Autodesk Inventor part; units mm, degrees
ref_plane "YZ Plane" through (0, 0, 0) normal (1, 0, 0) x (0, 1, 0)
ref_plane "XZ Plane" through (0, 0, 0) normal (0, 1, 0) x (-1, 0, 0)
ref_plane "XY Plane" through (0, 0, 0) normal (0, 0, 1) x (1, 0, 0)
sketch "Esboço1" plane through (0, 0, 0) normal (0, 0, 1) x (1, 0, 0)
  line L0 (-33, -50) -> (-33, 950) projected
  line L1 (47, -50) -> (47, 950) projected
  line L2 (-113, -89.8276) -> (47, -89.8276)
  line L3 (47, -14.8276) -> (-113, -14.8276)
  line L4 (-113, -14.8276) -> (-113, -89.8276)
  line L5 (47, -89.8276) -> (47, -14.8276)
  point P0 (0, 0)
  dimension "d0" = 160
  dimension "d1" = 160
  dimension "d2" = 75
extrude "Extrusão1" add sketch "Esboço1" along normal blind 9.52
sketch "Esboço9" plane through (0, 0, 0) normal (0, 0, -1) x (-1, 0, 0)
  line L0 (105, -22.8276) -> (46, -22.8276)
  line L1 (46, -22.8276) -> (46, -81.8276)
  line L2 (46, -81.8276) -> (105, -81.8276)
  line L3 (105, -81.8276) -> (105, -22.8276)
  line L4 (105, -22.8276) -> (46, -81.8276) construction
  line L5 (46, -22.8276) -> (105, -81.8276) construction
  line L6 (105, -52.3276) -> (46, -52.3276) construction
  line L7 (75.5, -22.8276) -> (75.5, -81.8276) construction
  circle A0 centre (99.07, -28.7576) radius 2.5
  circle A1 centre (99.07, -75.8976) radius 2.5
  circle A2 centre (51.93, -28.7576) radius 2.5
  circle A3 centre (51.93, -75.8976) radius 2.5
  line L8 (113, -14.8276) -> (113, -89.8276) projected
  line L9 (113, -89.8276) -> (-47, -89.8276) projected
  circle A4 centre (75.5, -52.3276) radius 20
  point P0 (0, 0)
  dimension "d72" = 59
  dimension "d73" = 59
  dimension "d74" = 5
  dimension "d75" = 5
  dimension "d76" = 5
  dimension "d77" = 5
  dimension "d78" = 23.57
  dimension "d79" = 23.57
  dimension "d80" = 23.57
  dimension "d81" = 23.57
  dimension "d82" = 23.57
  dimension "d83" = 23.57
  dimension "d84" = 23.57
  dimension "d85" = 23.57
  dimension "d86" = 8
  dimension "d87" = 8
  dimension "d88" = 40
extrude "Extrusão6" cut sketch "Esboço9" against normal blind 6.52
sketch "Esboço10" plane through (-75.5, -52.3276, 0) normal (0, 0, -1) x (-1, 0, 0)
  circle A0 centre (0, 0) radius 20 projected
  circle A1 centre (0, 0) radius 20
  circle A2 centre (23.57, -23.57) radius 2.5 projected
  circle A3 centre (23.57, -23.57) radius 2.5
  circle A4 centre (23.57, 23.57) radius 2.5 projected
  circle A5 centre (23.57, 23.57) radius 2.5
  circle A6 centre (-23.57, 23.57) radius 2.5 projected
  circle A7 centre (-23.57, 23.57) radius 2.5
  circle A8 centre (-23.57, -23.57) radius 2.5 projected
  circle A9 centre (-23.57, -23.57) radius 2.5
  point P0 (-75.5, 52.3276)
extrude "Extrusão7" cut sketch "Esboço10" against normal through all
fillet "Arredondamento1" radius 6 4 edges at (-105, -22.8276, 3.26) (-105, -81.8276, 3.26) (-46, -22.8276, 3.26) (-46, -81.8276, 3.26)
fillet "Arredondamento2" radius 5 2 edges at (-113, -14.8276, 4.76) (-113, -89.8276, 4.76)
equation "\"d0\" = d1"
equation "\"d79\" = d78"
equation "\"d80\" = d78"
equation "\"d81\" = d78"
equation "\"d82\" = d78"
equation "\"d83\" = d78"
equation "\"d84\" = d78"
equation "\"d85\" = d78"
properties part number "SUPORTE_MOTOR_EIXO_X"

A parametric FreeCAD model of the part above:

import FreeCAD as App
import Part
import Sketcher

V = App.Vector
Q = App.Units.Quantity


def edges_at(feature, points):
    """Names of the edges that pass closest to the given points."""
    edges = feature.Shape.Edges
    near = lambda p: min(range(len(edges)), key=lambda i: edges[i].distToShape(Part.Vertex(*p))[0])
    return sorted({f"Edge{near(p) + 1}" for p in points})


def add_polygon(sketch, points):
    """Adds a closed chain of lines whose ends are joined by coincident constraints."""
    first, n = sketch.GeometryCount, len(points)
    for a, b in zip(points, points[1:] + points[:1]):
        sketch.addGeometry(Part.LineSegment(App.Vector(*a, 0), App.Vector(*b, 0)), False)
    for i in range(n):
        sketch.addConstraint(Sketcher.Constraint("Coincident", first + i, 2, first + (i + 1) % n, 1))

doc = App.newDocument("Part")
body = doc.addObject("PartDesign::Body", "Body")

# Sketch on XY plane
sketch1 = doc.addObject("Sketcher::SketchObject", "Sketch")
body.addObject(sketch1)
sketch1.AttachmentSupport = (doc.XY_Plane, [""])
sketch1.MapMode = "FlatFace"
add_polygon(sketch1, [(47, -90), (47, -15), (-113, -15), (-113, -90)])  # lines 0-3
sketch1.addConstraint([
    Sketcher.Constraint("Vertical", 0),
    Sketcher.Constraint("Horizontal", 1),
    Sketcher.Constraint("Vertical", 2),
    Sketcher.Constraint("Horizontal", 3),
    Sketcher.Constraint("DistanceX", 1, 2, 1, 1, Q("160 mm")),
    Sketcher.Constraint("DistanceY", 0, 1, 0, 2, Q("75 mm")),
    Sketcher.Constraint("DistanceX", -1, 1, 0, 2, Q("47 mm")),
    Sketcher.Constraint("DistanceY", 0, 2, -1, 1, Q("14.8276 mm")),
])
pad1 = doc.addObject("PartDesign::Pad", "Pad")
body.addObject(pad1)
pad1.Profile = sketch1
pad1.Length = 9.52

# Sketch on XY plane
sketch2 = doc.addObject("Sketcher::SketchObject", "Sketch001")
body.addObject(sketch2)
sketch2.AttachmentSupport = (doc.XY_Plane, [""])
sketch2.MapMode = "FlatFace"
add_polygon(sketch2, [(-105, -81.8), (-105, -22.8), (-46, -22.8), (-46, -81.8)])  # lines 0-3
sketch2.addGeometry(Part.Circle(V(-51.9, -75.9, 0), V(0, 0, 1), 2.5), False)  # 4
sketch2.addGeometry(Part.Circle(V(-99.1, -75.9, 0), V(0, 0, 1), 2.5), False)  # 5
sketch2.addGeometry(Part.Circle(V(-51.9, -28.8, 0), V(0, 0, 1), 2.5), False)  # 6
sketch2.addGeometry(Part.Circle(V(-75.5, -52.3, 0), V(0, 0, 1), 20), False)  # 7
sketch2.addGeometry(Part.Circle(V(-99.1, -28.8, 0), V(0, 0, 1), 2.5), False)  # 8
sketch2.addConstraint([
    Sketcher.Constraint("Vertical", 0),
    Sketcher.Constraint("Horizontal", 1),
    Sketcher.Constraint("Vertical", 2),
    Sketcher.Constraint("Horizontal", 3),
    Sketcher.Constraint("Equal", 4, 5),
    Sketcher.Constraint("Equal", 5, 6),
    Sketcher.Constraint("Equal", 6, 8),
    Sketcher.Constraint("Horizontal", 4, 3, 5, 3),
    Sketcher.Constraint("Horizontal", 6, 3, 8, 3),
    Sketcher.Constraint("Vertical", 4, 3, 6, 3),
    Sketcher.Constraint("Vertical", 5, 3, 8, 3),
    Sketcher.Constraint("Equal", 3, 0),
    Sketcher.Constraint("Diameter", 4, Q("5 mm")),
    Sketcher.Constraint("Diameter", 7, Q("40 mm")),
    Sketcher.Constraint("DistanceX", 1, 1, 1, 2, Q("59 mm")),
    Sketcher.Constraint("DistanceX", 7, 3, 4, 3, Q("23.57 mm")),
    Sketcher.Constraint("DistanceY", 4, 3, 7, 3, Q("23.57 mm")),
    Sketcher.Constraint("DistanceX", 5, 3, 7, 3, Q("23.57 mm")),
    Sketcher.Constraint("DistanceY", 7, 3, 6, 3, Q("23.57 mm")),
    Sketcher.Constraint("DistanceX", 0, 2, -1, 1, Q("105 mm")),
    Sketcher.Constraint("DistanceX", 7, 3, -1, 1, Q("75.5 mm")),
    Sketcher.Constraint("DistanceY", 7, 3, 0, 2, Q("29.5 mm")),
    Sketcher.Constraint("DistanceY", 4, 3, -1, 1, Q("75.8976 mm")),
])
pocket1 = doc.addObject("PartDesign::Pocket", "Pocket")
body.addObject(pocket1)
pocket1.Profile = sketch2
pocket1.Length = 6.52
pocket1.Reversed = True

# Sketch on XY plane
sketch3 = doc.addObject("Sketcher::SketchObject", "Sketch002")
body.addObject(sketch3)
sketch3.AttachmentSupport = (doc.XY_Plane, [""])
sketch3.MapMode = "FlatFace"
sketch3.addGeometry([
    Part.Circle(V(-75.5, -52.3, 0), V(0, 0, 1), 20),  # 0
    Part.Circle(V(-99.1, -75.9, 0), V(0, 0, 1), 2.5),  # 1
    Part.Circle(V(-99.1, -28.8, 0), V(0, 0, 1), 2.5),  # 2
    Part.Circle(V(-51.9, -28.8, 0), V(0, 0, 1), 2.5),  # 3
    Part.Circle(V(-51.9, -75.9, 0), V(0, 0, 1), 2.5),  # 4
], False)
sketch3.addConstraint([
    Sketcher.Constraint("Equal", 1, 2),
    Sketcher.Constraint("Equal", 2, 3),
    Sketcher.Constraint("Equal", 3, 4),
    Sketcher.Constraint("Horizontal", 2, 3, 3, 3),
    Sketcher.Constraint("Horizontal", 1, 3, 4, 3),
    Sketcher.Constraint("Vertical", 1, 3, 2, 3),
    Sketcher.Constraint("Vertical", 3, 3, 4, 3),
    Sketcher.Constraint("Diameter", 0, Q("40 mm")),
    Sketcher.Constraint("Diameter", 1, Q("5 mm")),
    Sketcher.Constraint("DistanceX", 0, 3, -1, 1, Q("75.5 mm")),
    Sketcher.Constraint("DistanceX", 1, 3, -1, 1, Q("99.07 mm")),
    Sketcher.Constraint("DistanceX", 3, 3, -1, 1, Q("51.93 mm")),
    Sketcher.Constraint("DistanceY", 1, 3, 0, 3, Q("23.57 mm")),
    Sketcher.Constraint("DistanceY", 0, 3, 2, 3, Q("23.57 mm")),
    Sketcher.Constraint("DistanceY", 0, 3, -1, 1, Q("52.3276 mm")),
])
pocket2 = doc.addObject("PartDesign::Pocket", "Pocket001")
body.addObject(pocket2)
pocket2.Profile = sketch3
pocket2.Type = "ThroughAll"
pocket2.Reversed = True
doc.recompute()

fillet = doc.addObject("PartDesign::Fillet", "Fillet")
body.addObject(fillet)
fillet.Base = (pocket2, edges_at(pocket2, [
    (-105, -22.828, 3.26),
    (-105, -81.828, 3.26),
    (-46, -22.828, 3.26),
    (-46, -81.828, 3.26),
]))
fillet.Radius = 6
doc.recompute()

fillet2 = doc.addObject("PartDesign::Fillet", "Fillet001")
body.addObject(fillet2)
fillet2.Base = (fillet, edges_at(fillet, [(-113, -14.828, 4.76), (-113, -89.828, 4.76)]))
fillet2.Radius = 5

doc.recompute()
